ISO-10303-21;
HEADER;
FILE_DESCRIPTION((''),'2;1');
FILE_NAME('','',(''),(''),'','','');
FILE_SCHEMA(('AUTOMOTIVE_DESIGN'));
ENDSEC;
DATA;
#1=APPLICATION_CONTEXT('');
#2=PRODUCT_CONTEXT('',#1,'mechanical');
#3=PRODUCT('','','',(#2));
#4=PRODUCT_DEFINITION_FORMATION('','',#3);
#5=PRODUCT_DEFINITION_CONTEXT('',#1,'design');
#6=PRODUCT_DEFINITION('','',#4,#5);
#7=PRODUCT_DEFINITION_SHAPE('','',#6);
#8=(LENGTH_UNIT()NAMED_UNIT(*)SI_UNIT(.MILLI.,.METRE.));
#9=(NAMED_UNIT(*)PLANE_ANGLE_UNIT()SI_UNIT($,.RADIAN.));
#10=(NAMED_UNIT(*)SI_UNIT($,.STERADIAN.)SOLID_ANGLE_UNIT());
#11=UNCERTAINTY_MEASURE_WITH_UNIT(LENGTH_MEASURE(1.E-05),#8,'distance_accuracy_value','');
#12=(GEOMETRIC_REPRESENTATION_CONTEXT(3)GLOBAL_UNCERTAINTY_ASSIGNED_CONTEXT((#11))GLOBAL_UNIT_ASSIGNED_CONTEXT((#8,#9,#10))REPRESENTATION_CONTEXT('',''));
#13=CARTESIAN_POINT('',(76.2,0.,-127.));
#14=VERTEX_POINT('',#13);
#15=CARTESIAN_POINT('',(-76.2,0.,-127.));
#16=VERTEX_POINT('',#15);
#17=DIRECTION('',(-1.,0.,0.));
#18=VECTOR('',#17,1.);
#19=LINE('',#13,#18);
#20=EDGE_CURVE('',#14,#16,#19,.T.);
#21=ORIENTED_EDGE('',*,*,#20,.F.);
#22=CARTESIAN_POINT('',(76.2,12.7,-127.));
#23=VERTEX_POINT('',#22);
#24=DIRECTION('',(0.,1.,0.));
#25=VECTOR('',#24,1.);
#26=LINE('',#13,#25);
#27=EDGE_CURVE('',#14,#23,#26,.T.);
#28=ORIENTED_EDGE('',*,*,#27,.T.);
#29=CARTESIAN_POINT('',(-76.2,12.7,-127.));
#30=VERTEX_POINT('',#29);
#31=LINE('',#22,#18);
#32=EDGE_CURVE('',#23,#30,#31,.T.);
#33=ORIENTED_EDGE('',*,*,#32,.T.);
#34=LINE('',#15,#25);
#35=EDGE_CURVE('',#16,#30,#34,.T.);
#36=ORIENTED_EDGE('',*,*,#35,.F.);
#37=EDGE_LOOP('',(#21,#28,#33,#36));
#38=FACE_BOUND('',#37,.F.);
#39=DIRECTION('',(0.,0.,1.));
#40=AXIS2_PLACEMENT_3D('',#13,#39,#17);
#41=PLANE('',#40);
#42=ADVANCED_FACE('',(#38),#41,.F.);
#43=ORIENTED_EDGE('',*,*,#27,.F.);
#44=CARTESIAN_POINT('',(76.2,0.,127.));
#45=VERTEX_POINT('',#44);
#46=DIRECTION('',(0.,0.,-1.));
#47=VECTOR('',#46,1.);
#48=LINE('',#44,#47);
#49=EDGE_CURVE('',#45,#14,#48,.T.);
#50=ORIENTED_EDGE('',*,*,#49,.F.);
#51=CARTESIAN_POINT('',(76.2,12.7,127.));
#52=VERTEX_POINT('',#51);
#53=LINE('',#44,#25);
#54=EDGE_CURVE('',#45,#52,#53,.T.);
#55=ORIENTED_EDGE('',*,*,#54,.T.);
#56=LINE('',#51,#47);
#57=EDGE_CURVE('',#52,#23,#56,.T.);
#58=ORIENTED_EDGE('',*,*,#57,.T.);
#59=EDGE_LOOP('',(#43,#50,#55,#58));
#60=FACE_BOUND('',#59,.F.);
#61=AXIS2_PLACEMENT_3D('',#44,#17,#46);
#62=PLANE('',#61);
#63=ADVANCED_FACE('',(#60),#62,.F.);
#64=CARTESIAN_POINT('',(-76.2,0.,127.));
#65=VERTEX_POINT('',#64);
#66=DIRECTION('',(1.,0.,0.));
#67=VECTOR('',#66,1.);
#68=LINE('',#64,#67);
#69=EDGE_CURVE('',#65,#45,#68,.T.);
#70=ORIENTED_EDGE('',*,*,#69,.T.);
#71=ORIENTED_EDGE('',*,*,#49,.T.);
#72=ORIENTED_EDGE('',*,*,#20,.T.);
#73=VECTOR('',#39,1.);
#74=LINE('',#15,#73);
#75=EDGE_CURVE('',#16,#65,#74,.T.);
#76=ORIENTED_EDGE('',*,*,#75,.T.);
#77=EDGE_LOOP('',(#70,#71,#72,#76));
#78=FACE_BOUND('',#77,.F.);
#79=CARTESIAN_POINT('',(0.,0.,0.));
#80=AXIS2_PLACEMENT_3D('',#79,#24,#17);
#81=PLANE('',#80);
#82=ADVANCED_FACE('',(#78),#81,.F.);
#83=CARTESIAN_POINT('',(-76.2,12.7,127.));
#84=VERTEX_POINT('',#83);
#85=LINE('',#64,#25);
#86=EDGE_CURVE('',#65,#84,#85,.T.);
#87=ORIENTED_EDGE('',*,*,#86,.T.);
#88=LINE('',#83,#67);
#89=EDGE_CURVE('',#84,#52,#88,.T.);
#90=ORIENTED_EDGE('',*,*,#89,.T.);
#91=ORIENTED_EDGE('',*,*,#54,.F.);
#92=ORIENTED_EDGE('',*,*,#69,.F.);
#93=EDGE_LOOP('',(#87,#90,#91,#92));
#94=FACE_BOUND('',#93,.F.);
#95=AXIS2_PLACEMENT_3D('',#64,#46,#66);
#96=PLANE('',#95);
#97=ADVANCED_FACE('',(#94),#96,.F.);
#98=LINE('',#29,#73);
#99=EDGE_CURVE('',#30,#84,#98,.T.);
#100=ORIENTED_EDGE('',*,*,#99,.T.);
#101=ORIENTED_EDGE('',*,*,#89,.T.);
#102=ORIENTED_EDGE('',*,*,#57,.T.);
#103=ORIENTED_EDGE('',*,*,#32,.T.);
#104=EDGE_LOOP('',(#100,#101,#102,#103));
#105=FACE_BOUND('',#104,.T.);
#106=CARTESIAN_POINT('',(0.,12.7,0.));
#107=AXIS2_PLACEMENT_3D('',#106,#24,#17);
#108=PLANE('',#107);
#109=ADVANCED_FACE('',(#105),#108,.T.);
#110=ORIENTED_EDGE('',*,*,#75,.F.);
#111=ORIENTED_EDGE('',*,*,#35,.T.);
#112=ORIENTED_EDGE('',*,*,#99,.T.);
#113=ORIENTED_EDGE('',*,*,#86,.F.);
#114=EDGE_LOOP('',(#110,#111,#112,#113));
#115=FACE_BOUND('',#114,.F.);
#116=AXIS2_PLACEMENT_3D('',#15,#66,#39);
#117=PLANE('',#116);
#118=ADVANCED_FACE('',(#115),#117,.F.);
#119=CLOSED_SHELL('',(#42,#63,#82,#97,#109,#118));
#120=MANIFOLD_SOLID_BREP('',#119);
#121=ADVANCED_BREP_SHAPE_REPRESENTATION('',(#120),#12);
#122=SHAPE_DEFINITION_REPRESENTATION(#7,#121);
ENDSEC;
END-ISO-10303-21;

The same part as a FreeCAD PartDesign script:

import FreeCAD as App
import Part
import Sketcher

V = App.Vector
Q = App.Units.Quantity


def add_polygon(sketch, points):
    """Adds a closed chain of lines whose ends are joined by coincident constraints."""
    first, n = sketch.GeometryCount, len(points)
    for a, b in zip(points, points[1:] + points[:1]):
        sketch.addGeometry(Part.LineSegment(App.Vector(*a, 0), App.Vector(*b, 0)), False)
    for i in range(n):
        sketch.addConstraint(Sketcher.Constraint("Coincident", first + i, 2, first + (i + 1) % n, 1))

doc = App.newDocument("Part")
params = doc.addObject("Spreadsheet::Sheet", "Params")
for row, (alias, value) in enumerate([
    ("sketch1_width", "6 in"),
    ("sketch1_height", "10 in"),
    ("pad1_length", "0.5 in"),
], start=1):
    params.set(f"A{row}", alias)
    params.set(f"B{row}", "=" + value)
    params.setAlias(f"B{row}", alias)

body = doc.addObject("PartDesign::Body", "Body")

# Sketch on XZ plane
sketch1 = doc.addObject("Sketcher::SketchObject", "Sketch")
body.addObject(sketch1)
sketch1.AttachmentSupport = (doc.XZ_Plane, [""])
sketch1.MapMode = "FlatFace"
add_polygon(sketch1, [(-76, -127), (-76, 127), (76, 127), (76, -127)])  # lines 0-3
sketch1.addConstraint(Sketcher.Constraint("Vertical", 0))
sketch1.addConstraint(Sketcher.Constraint("Horizontal", 1))
sketch1.addConstraint(Sketcher.Constraint("Vertical", 2))
sketch1.addConstraint(Sketcher.Constraint("Horizontal", 3))
sketch1.addConstraint(Sketcher.Constraint("Symmetric", 0, 2, 2, 2, -1, 1))
sketch1.addConstraint(Sketcher.Constraint("DistanceX", 1, 1, 1, 2, Q("6 in")))
sketch1.addConstraint(Sketcher.Constraint("DistanceY", 0, 1, 0, 2, Q("10 in")))
sketch1.setExpression("Constraints[9]", "Params.sketch1_width")
sketch1.setExpression("Constraints[10]", "Params.sketch1_height")
pad1 = doc.addObject("PartDesign::Pad", "Pad")
body.addObject(pad1)
pad1.Profile = sketch1
pad1.setExpression("Length", "Params.pad1_length")
pad1.Reversed = True

doc.recompute()
